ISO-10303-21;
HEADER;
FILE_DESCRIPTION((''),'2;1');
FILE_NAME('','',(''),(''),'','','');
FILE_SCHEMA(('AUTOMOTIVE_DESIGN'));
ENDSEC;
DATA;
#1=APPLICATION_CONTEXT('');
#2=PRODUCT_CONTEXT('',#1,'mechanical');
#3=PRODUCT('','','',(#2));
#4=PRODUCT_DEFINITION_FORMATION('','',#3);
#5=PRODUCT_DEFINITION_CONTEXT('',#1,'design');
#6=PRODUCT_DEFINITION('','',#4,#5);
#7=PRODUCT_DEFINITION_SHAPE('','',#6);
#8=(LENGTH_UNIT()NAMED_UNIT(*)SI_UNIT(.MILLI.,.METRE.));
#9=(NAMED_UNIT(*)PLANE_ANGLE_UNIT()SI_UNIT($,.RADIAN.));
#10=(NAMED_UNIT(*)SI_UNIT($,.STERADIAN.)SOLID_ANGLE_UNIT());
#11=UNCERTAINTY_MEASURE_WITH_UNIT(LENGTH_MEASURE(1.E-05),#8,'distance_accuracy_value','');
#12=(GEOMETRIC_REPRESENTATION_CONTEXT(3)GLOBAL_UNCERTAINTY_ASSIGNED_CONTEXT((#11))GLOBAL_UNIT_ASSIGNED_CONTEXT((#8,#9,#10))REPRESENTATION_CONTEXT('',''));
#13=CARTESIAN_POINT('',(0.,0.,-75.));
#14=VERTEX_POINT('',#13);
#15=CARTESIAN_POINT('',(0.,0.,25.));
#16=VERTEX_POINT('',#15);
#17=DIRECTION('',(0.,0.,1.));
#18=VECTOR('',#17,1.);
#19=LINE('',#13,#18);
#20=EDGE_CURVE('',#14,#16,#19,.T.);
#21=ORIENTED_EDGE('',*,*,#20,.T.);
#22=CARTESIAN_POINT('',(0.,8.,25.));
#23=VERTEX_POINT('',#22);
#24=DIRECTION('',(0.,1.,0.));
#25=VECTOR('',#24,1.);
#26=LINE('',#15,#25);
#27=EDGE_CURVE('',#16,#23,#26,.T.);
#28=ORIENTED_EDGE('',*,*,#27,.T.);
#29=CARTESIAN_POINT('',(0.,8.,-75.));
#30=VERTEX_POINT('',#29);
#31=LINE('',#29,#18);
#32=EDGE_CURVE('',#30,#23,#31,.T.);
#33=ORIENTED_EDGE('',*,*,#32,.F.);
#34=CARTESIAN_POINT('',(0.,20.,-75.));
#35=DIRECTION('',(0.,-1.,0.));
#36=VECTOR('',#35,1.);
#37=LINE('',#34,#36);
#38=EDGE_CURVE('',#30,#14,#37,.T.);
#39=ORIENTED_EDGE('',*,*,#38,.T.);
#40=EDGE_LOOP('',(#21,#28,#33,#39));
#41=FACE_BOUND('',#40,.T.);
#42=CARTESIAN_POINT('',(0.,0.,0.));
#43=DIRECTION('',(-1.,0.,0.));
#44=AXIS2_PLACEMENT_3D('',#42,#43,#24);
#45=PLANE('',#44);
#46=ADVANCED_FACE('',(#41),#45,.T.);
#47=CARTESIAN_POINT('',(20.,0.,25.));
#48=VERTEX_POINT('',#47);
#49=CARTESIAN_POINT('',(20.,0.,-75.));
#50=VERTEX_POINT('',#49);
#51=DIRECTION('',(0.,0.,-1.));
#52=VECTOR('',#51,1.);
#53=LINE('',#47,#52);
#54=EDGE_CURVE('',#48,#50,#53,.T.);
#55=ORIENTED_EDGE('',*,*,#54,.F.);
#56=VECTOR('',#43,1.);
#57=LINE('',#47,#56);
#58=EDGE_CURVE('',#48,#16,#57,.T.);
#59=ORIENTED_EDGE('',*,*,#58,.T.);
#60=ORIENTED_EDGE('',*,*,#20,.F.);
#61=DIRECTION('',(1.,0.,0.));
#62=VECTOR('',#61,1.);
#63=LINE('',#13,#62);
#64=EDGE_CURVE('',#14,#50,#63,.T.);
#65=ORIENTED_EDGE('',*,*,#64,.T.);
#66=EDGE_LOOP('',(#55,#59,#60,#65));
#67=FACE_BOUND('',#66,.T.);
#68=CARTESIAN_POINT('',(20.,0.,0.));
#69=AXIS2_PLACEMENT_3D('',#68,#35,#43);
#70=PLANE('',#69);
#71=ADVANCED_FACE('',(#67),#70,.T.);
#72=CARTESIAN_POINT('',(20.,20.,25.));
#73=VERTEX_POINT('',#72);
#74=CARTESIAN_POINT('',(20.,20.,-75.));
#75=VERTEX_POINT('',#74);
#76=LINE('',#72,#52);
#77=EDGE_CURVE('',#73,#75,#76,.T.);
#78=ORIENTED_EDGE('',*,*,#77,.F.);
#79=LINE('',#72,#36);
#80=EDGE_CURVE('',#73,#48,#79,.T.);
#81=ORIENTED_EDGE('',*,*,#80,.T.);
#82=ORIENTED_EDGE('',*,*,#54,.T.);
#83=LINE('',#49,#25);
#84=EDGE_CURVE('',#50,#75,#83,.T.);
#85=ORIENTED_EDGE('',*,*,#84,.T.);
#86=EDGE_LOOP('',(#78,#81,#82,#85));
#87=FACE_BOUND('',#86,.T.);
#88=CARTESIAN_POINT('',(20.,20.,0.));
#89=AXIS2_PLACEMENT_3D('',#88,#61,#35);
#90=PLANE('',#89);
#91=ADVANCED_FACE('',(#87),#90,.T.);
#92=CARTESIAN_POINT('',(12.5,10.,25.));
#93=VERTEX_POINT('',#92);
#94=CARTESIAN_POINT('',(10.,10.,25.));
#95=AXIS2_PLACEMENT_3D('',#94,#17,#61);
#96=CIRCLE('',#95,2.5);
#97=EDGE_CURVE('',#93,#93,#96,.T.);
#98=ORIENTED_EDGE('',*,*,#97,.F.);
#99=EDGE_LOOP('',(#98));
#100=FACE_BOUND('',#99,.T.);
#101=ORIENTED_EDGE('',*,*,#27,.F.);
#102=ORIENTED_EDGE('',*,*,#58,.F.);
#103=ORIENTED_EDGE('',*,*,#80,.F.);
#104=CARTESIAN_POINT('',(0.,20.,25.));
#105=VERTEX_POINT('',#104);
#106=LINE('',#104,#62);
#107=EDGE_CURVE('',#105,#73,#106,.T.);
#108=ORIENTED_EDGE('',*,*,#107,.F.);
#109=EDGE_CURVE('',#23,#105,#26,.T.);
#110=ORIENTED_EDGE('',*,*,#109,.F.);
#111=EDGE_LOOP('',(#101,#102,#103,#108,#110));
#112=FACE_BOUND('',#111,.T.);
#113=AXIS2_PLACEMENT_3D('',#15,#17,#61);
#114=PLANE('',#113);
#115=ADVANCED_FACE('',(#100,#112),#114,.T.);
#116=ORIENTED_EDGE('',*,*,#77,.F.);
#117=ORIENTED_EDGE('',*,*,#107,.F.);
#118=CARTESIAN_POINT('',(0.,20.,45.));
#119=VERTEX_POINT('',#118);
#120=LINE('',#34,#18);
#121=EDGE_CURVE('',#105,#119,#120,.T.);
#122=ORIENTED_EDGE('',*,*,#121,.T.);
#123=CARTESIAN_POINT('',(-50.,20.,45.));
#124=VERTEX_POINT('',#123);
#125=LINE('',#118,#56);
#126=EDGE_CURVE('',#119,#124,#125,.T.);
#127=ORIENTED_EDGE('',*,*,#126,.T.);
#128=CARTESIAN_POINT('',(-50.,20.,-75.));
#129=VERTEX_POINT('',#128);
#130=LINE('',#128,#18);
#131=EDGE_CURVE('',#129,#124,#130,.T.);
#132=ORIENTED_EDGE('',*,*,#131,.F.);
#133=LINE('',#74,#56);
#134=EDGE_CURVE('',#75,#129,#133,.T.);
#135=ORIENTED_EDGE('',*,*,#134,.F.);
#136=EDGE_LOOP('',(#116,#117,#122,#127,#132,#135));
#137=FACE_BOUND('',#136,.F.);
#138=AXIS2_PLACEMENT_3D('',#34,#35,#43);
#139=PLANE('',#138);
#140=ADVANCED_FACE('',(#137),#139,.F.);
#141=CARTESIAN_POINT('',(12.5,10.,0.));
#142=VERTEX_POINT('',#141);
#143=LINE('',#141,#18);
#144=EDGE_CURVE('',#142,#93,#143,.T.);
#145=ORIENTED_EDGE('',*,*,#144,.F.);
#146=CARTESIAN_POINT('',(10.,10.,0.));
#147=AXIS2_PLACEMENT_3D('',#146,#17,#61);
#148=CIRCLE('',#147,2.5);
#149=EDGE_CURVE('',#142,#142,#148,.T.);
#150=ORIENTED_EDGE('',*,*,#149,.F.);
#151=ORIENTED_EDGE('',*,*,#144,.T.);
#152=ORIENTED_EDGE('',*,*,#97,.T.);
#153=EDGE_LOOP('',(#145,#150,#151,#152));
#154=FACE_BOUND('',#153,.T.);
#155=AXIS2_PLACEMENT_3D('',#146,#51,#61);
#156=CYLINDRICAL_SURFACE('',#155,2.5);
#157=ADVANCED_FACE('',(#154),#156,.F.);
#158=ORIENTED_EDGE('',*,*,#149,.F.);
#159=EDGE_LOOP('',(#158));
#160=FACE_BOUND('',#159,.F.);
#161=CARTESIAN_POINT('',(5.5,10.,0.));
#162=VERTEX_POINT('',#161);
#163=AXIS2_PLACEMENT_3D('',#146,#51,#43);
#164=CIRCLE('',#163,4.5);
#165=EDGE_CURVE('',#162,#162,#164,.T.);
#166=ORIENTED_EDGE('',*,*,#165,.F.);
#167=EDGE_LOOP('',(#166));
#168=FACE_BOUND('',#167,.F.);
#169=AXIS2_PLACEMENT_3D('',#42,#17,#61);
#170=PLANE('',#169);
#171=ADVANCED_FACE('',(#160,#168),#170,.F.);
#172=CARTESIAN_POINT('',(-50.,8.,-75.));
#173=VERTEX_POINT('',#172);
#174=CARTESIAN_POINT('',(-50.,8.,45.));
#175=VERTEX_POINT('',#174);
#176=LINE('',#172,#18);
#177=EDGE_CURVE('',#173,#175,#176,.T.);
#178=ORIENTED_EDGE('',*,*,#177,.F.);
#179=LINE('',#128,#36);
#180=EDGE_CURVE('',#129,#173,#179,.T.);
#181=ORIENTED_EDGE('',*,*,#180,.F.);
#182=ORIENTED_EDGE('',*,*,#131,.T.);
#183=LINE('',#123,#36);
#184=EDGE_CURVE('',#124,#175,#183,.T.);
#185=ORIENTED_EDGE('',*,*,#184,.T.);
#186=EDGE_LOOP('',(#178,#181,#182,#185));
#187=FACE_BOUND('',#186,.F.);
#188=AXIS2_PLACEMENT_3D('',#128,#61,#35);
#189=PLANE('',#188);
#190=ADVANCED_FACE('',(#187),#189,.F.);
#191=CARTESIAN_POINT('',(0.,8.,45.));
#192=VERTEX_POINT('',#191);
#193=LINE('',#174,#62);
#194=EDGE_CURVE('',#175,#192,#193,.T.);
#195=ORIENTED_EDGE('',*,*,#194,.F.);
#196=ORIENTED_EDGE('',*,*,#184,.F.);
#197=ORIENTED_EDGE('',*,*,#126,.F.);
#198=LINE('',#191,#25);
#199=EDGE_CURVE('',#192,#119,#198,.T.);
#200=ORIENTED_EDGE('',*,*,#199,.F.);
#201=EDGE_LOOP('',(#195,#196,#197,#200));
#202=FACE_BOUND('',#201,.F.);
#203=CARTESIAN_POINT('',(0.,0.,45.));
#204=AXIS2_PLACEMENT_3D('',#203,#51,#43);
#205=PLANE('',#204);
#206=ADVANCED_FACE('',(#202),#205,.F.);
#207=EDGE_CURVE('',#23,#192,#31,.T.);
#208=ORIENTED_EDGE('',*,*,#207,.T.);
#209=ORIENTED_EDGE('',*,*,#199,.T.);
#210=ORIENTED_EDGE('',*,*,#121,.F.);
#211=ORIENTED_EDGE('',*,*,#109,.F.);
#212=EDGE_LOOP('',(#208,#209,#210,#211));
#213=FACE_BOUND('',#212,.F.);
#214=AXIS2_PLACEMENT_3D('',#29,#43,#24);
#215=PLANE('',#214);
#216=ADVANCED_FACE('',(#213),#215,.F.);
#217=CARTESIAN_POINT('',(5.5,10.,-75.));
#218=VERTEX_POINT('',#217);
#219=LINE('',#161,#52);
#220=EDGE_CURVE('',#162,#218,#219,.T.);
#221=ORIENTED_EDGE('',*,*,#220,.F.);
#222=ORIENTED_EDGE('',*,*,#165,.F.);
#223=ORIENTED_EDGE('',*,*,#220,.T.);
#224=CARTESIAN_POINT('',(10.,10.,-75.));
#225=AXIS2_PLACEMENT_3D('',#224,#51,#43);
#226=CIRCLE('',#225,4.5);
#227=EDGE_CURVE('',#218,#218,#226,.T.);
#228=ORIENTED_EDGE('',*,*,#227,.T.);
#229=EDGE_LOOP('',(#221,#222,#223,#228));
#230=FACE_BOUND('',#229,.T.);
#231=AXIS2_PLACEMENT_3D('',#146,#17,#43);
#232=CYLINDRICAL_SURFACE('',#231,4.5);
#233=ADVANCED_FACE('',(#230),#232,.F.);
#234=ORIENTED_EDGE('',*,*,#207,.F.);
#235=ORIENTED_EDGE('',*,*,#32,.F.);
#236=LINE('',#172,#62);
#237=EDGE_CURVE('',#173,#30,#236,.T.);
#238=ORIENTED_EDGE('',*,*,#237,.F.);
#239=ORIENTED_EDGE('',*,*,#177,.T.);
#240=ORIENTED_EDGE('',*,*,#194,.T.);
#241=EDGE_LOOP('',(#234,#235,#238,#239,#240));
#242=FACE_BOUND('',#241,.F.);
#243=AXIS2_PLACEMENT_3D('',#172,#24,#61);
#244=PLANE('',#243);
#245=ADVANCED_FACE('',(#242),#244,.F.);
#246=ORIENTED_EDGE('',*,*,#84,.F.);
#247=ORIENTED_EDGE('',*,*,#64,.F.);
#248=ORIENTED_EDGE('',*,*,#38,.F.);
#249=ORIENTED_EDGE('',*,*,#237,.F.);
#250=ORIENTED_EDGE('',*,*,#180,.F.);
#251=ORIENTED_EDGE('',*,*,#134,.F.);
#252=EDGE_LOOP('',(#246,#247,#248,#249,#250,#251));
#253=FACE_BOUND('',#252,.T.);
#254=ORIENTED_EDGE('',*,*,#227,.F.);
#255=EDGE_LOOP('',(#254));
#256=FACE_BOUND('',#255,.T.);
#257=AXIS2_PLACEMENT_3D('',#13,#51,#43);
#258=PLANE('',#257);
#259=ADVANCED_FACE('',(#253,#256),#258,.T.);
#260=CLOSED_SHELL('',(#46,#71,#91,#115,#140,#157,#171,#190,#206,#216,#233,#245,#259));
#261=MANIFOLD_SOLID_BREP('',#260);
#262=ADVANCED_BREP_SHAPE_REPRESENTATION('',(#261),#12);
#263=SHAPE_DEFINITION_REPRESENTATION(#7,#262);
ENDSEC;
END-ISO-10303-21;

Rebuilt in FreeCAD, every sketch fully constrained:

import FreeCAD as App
import Part
import Sketcher

V = App.Vector

doc = App.newDocument("Part")
body = doc.addObject("PartDesign::Body", "Body")

# Sketch on XY plane
sketch1 = body.newObject("Sketcher::SketchObject", "Sketch")
sketch1.AttachmentSupport = (doc.getObject("XY_Plane"), [""])
sketch1.MapMode = "FlatFace"
sketch1.addGeometry([
    Part.LineSegment(V(20, 20, 0), V(0, 20, 0)),  # 0
    Part.LineSegment(V(0, 20, 0), V(0, 0, 0)),  # 1
    Part.LineSegment(V(0, 0, 0), V(20, 0, 0)),  # 2
    Part.LineSegment(V(20, 0, 0), V(20, 20, 0)),  # 3
    Part.Circle(V(10, 10, 0), V(0, 0, 1), 2.5),  # 4
], False)
sketch1.addConstraint([
    Sketcher.Constraint("Coincident", 0, 2, 1, 1),
    Sketcher.Constraint("Coincident", 1, 2, 2, 1),
    Sketcher.Constraint("Coincident", 2, 2, 3, 1),
    Sketcher.Constraint("Coincident", 3, 2, 0, 1),
    Sketcher.Constraint("Horizontal", 0),
    Sketcher.Constraint("Vertical", 1),
    Sketcher.Constraint("Horizontal", 2),
    Sketcher.Constraint("Vertical", 3),
    Sketcher.Constraint("Coincident", 1, 2, -1, 1),
    Sketcher.Constraint("Equal", 2, 1),
    Sketcher.Constraint("Diameter", 4, 5.0),
    Sketcher.Constraint("DistanceX", 0, 2, 0, 1, 20.0),
    Sketcher.Constraint("DistanceX", -1, 1, 4, 3, 10.0),
    Sketcher.Constraint("DistanceY", -1, 1, 4, 3, 10.0),
])
pad1 = body.newObject("PartDesign::Pad", "Pad")
pad1.Profile = sketch1
pad1.Length = 25

# Sketch on XY plane
sketch2 = body.newObject("Sketcher::SketchObject", "Sketch001")
sketch2.AttachmentSupport = (doc.getObject("XY_Plane"), [""])
sketch2.MapMode = "FlatFace"
sketch2.addGeometry([
    Part.LineSegment(V(20, 0, 0), V(0, 0, 0)),  # 0
    Part.LineSegment(V(0, 0, 0), V(0, 20, 0)),  # 1
    Part.LineSegment(V(0, 20, 0), V(20, 20, 0)),  # 2
    Part.LineSegment(V(20, 20, 0), V(20, 0, 0)),  # 3
    Part.Circle(V(10, 10, 0), V(0, 0, 1), 4.5),  # 4
], False)
sketch2.addConstraint([
    Sketcher.Constraint("Coincident", 0, 2, 1, 1),
    Sketcher.Constraint("Coincident", 1, 2, 2, 1),
    Sketcher.Constraint("Coincident", 2, 2, 3, 1),
    Sketcher.Constraint("Coincident", 3, 2, 0, 1),
    Sketcher.Constraint("Horizontal", 0),
    Sketcher.Constraint("Vertical", 1),
    Sketcher.Constraint("Horizontal", 2),
    Sketcher.Constraint("Vertical", 3),
    Sketcher.Constraint("Coincident", 0, 2, -1, 1),
    Sketcher.Constraint("Equal", 2, 1),
    Sketcher.Constraint("Diameter", 4, 9.0),
    Sketcher.Constraint("DistanceX", 0, 2, 0, 1, 20.0),
    Sketcher.Constraint("DistanceX", -1, 1, 4, 3, 10.0),
    Sketcher.Constraint("DistanceY", -1, 1, 4, 3, 10.0),
])
pad2 = body.newObject("PartDesign::Pad", "Pad001")
pad2.Profile = sketch2
pad2.Length = 75
pad2.Reversed = True

# Sketch on XY plane
sketch3 = body.newObject("Sketcher::SketchObject", "Sketch002")
sketch3.AttachmentSupport = (doc.getObject("XY_Plane"), [""])
sketch3.MapMode = "FlatFace"
sketch3.AttachmentOffset = App.Placement(V(0, 0, -75), App.Rotation())
sketch3.addGeometry([
    Part.LineSegment(V(-50, 20, 0), V(0, 20, 0)),
    Part.LineSegment(V(0, 20, 0), V(0, 8, 0)),
    Part.LineSegment(V(0, 8, 0), V(-50, 8, 0)),
    Part.LineSegment(V(-50, 8, 0), V(-50, 20, 0)),
], False)
sketch3.addConstraint([
    Sketcher.Constraint("Coincident", 0, 2, 1, 1),
    Sketcher.Constraint("Coincident", 1, 2, 2, 1),
    Sketcher.Constraint("Coincident", 2, 2, 3, 1),
    Sketcher.Constraint("Coincident", 3, 2, 0, 1),
    Sketcher.Constraint("Horizontal", 0),
    Sketcher.Constraint("Vertical", 1),
    Sketcher.Constraint("Horizontal", 2),
    Sketcher.Constraint("Vertical", 3),
    Sketcher.Constraint("PointOnObject", 0, 2, -2),
    Sketcher.Constraint("DistanceX", 0, 1, 0, 2, 50.0),
    Sketcher.Constraint("DistanceY", 1, 2, 1, 1, 12.0),
    Sketcher.Constraint("DistanceY", -1, 1, 0, 2, 20.0),
])
pad3 = body.newObject("PartDesign::Pad", "Pad002")
pad3.Profile = sketch3
pad3.Length = 120

doc.recompute()
